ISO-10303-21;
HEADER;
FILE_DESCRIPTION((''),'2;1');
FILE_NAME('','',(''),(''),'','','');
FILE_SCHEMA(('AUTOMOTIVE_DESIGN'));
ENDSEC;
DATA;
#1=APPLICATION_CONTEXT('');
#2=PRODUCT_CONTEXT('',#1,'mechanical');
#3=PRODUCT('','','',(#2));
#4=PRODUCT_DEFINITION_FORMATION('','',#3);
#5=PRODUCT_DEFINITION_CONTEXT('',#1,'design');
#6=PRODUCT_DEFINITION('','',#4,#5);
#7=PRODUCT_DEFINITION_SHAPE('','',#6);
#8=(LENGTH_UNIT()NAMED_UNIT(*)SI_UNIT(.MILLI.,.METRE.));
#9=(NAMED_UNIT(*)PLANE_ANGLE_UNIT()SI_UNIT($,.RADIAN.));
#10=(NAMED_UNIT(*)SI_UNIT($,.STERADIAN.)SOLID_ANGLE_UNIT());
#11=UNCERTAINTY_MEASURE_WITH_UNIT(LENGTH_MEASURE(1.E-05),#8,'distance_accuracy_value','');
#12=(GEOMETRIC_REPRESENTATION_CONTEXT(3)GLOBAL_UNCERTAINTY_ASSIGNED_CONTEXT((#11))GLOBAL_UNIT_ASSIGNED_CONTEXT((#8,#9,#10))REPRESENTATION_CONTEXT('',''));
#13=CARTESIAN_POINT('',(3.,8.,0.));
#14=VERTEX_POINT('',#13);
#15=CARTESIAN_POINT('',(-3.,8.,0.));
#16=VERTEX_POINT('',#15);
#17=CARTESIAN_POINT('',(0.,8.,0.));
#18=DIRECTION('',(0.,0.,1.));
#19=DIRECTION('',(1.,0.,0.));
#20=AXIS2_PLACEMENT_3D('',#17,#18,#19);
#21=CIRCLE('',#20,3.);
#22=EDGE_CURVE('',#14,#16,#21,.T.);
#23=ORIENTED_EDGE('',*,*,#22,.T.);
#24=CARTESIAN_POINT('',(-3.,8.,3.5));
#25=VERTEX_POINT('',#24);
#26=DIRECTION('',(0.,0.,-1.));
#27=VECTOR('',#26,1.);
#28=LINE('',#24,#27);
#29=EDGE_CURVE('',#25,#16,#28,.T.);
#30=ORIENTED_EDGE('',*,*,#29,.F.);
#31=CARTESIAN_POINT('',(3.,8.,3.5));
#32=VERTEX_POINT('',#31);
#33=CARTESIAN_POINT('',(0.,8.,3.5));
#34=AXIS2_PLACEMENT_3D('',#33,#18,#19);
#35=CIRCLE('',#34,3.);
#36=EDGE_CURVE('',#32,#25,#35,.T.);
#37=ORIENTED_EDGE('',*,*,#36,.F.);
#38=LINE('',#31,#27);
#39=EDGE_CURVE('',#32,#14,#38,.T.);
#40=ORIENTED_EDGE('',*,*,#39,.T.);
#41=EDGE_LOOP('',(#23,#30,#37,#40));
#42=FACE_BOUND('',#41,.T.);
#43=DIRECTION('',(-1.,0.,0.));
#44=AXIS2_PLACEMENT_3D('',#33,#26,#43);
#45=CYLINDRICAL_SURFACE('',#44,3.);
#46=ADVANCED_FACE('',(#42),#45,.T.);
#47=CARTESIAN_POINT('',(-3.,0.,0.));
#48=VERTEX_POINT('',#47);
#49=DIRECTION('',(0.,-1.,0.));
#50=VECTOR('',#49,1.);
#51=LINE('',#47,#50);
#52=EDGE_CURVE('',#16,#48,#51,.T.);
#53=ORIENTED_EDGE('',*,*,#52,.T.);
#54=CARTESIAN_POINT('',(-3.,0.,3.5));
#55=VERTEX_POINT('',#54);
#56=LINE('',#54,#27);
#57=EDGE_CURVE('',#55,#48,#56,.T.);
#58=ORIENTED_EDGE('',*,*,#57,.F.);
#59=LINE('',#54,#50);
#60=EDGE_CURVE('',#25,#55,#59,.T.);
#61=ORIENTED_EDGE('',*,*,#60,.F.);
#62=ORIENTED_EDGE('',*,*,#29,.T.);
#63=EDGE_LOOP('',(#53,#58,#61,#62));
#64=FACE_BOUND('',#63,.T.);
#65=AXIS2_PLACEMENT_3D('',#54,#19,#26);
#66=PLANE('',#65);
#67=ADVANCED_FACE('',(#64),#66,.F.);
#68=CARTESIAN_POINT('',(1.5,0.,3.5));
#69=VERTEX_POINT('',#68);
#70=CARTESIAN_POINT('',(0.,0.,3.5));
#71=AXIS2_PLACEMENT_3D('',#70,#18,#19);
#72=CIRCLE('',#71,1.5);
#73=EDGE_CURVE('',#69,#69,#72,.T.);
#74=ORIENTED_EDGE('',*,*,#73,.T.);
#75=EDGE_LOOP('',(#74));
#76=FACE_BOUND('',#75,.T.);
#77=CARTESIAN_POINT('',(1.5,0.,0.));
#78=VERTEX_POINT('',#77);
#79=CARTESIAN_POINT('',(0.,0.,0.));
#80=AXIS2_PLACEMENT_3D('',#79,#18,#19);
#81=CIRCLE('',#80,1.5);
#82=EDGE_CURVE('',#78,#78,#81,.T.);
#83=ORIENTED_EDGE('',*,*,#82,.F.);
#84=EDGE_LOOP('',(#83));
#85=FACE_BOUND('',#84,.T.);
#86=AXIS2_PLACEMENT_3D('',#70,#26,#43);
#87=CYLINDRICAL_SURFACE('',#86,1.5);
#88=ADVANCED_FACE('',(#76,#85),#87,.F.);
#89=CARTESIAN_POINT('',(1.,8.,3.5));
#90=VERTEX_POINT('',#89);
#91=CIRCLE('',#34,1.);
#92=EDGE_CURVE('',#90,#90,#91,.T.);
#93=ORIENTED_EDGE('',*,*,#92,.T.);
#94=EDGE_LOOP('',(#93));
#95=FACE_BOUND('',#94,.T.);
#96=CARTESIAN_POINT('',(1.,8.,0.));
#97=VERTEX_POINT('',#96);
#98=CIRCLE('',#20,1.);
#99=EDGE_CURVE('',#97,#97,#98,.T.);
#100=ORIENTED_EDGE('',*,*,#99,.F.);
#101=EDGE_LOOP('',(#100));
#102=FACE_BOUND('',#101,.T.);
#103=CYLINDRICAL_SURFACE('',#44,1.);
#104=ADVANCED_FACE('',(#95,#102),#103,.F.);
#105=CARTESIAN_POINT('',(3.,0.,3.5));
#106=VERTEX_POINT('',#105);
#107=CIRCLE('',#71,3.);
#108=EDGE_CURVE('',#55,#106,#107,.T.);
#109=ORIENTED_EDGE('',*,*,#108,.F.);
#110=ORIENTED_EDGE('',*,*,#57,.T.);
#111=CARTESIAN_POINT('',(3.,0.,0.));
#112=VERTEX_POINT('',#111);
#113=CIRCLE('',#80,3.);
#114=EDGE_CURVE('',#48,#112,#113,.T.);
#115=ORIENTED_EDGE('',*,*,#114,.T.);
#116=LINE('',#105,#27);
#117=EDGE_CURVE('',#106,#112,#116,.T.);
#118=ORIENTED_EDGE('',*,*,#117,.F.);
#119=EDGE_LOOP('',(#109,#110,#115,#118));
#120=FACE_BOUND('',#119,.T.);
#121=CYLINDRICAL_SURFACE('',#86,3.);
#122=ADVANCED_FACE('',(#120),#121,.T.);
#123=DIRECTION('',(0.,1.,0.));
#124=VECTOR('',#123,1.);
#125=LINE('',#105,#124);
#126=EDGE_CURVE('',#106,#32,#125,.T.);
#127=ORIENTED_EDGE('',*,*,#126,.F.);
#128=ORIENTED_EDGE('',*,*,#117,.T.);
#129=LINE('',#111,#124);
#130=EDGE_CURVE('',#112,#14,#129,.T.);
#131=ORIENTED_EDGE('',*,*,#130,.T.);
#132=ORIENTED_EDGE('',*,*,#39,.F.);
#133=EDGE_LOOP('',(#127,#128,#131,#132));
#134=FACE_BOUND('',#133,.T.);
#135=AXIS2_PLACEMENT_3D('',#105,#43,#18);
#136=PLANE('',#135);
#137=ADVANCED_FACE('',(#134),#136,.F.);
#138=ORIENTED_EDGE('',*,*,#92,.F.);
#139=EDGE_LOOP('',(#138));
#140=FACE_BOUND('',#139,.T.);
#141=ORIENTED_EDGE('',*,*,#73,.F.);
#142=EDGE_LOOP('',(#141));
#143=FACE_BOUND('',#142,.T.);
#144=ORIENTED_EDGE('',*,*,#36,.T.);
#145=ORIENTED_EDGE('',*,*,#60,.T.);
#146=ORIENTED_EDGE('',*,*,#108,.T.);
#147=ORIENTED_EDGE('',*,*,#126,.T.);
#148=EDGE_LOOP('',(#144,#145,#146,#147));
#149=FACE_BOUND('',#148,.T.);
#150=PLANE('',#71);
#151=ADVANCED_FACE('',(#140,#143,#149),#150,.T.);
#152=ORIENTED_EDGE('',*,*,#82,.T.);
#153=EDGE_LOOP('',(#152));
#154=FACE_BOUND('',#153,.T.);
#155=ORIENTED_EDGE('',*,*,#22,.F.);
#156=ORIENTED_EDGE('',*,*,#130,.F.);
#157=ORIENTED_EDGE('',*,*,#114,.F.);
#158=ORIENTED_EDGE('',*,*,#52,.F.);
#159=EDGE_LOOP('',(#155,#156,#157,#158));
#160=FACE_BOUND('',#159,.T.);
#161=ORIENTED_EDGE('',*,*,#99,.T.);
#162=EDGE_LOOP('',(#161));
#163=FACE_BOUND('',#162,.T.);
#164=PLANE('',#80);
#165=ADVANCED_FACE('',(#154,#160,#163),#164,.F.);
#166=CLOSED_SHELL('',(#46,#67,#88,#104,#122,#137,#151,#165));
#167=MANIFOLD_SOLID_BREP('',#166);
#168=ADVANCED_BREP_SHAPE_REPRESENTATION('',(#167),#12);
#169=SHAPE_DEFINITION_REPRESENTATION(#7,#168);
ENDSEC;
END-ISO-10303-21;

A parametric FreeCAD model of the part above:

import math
import FreeCAD as App
import Part
import Sketcher
from FreeCAD import Vector
Q = App.Units.Quantity

doc = App.newDocument("Part")
params = doc.addObject("Spreadsheet::Sheet", "Params")
for row, (alias, value) in enumerate([
    ("sketch1_diameter", "3 mm"),
    ("sketch1_diameter2", "2 mm"),
    ("sketch1_radius", "3 mm"),
    ("sketch1_height", "8 mm"),
    ("pad1_length", "3.5 mm"),
], start=1):
    params.set(f"A{row}", alias)
    params.set(f"B{row}", "=" + value)
    params.setAlias(f"B{row}", alias)

body = doc.addObject("PartDesign::Body", "Body")

sketch1 = doc.addObject("Sketcher::SketchObject", "Sketch")
body.addObject(sketch1)
sketch1.AttachmentSupport = (doc.XY_Plane, [""])
sketch1.MapMode = "FlatFace"
sketch1.addGeometry([
    Part.LineSegment(Vector(-3, 8, 0), Vector(-3, 0, 0)),
    Part.ArcOfCircle(Part.Circle(Vector(0, 0, 0), Vector(0, 0, 1), 3), math.radians(180), math.radians(360)),
    Part.LineSegment(Vector(3, 0, 0), Vector(3, 8, 0)),
    Part.ArcOfCircle(Part.Circle(Vector(0, 8, 0), Vector(0, 0, 1), 3), math.radians(0), math.radians(180)),
    Part.Circle(Vector(0, 0, 0), Vector(0, 0, 1), 1.5),
    Part.Circle(Vector(0, 8, 0), Vector(0, 0, 1), 1),
], False)
sketch1.addConstraint([
    Sketcher.Constraint("Tangent", 0, 2, 1, 1),
    Sketcher.Constraint("Tangent", 1, 2, 2, 1),
    Sketcher.Constraint("Tangent", 2, 2, 3, 1),
    Sketcher.Constraint("Tangent", 3, 2, 0, 1),
    Sketcher.Constraint("Vertical", 0),
    Sketcher.Constraint("Vertical", 2),
    Sketcher.Constraint("Coincident", 1, 3, -1, 1),
    Sketcher.Constraint("Coincident", 4, 3, -1, 1),
    Sketcher.Constraint("Coincident", 5, 3, 3, 3),
    Sketcher.Constraint("Diameter", 4, Q("3 mm")),
    Sketcher.Constraint("Diameter", 5, Q("2 mm")),
    Sketcher.Constraint("Radius", 1, Q("3 mm")),
    Sketcher.Constraint("DistanceY", 0, 2, 0, 1, Q("8 mm")),
])
sketch1.setExpression("Constraints[9]", "Params.sketch1_diameter")
sketch1.setExpression("Constraints[10]", "Params.sketch1_diameter2")
sketch1.setExpression("Constraints[11]", "Params.sketch1_radius")
sketch1.setExpression("Constraints[12]", "Params.sketch1_height")
pad1 = doc.addObject("PartDesign::Pad", "Pad")
body.addObject(pad1)
pad1.Profile = sketch1
pad1.setExpression("Length", "Params.pad1_length")

doc.recompute()
